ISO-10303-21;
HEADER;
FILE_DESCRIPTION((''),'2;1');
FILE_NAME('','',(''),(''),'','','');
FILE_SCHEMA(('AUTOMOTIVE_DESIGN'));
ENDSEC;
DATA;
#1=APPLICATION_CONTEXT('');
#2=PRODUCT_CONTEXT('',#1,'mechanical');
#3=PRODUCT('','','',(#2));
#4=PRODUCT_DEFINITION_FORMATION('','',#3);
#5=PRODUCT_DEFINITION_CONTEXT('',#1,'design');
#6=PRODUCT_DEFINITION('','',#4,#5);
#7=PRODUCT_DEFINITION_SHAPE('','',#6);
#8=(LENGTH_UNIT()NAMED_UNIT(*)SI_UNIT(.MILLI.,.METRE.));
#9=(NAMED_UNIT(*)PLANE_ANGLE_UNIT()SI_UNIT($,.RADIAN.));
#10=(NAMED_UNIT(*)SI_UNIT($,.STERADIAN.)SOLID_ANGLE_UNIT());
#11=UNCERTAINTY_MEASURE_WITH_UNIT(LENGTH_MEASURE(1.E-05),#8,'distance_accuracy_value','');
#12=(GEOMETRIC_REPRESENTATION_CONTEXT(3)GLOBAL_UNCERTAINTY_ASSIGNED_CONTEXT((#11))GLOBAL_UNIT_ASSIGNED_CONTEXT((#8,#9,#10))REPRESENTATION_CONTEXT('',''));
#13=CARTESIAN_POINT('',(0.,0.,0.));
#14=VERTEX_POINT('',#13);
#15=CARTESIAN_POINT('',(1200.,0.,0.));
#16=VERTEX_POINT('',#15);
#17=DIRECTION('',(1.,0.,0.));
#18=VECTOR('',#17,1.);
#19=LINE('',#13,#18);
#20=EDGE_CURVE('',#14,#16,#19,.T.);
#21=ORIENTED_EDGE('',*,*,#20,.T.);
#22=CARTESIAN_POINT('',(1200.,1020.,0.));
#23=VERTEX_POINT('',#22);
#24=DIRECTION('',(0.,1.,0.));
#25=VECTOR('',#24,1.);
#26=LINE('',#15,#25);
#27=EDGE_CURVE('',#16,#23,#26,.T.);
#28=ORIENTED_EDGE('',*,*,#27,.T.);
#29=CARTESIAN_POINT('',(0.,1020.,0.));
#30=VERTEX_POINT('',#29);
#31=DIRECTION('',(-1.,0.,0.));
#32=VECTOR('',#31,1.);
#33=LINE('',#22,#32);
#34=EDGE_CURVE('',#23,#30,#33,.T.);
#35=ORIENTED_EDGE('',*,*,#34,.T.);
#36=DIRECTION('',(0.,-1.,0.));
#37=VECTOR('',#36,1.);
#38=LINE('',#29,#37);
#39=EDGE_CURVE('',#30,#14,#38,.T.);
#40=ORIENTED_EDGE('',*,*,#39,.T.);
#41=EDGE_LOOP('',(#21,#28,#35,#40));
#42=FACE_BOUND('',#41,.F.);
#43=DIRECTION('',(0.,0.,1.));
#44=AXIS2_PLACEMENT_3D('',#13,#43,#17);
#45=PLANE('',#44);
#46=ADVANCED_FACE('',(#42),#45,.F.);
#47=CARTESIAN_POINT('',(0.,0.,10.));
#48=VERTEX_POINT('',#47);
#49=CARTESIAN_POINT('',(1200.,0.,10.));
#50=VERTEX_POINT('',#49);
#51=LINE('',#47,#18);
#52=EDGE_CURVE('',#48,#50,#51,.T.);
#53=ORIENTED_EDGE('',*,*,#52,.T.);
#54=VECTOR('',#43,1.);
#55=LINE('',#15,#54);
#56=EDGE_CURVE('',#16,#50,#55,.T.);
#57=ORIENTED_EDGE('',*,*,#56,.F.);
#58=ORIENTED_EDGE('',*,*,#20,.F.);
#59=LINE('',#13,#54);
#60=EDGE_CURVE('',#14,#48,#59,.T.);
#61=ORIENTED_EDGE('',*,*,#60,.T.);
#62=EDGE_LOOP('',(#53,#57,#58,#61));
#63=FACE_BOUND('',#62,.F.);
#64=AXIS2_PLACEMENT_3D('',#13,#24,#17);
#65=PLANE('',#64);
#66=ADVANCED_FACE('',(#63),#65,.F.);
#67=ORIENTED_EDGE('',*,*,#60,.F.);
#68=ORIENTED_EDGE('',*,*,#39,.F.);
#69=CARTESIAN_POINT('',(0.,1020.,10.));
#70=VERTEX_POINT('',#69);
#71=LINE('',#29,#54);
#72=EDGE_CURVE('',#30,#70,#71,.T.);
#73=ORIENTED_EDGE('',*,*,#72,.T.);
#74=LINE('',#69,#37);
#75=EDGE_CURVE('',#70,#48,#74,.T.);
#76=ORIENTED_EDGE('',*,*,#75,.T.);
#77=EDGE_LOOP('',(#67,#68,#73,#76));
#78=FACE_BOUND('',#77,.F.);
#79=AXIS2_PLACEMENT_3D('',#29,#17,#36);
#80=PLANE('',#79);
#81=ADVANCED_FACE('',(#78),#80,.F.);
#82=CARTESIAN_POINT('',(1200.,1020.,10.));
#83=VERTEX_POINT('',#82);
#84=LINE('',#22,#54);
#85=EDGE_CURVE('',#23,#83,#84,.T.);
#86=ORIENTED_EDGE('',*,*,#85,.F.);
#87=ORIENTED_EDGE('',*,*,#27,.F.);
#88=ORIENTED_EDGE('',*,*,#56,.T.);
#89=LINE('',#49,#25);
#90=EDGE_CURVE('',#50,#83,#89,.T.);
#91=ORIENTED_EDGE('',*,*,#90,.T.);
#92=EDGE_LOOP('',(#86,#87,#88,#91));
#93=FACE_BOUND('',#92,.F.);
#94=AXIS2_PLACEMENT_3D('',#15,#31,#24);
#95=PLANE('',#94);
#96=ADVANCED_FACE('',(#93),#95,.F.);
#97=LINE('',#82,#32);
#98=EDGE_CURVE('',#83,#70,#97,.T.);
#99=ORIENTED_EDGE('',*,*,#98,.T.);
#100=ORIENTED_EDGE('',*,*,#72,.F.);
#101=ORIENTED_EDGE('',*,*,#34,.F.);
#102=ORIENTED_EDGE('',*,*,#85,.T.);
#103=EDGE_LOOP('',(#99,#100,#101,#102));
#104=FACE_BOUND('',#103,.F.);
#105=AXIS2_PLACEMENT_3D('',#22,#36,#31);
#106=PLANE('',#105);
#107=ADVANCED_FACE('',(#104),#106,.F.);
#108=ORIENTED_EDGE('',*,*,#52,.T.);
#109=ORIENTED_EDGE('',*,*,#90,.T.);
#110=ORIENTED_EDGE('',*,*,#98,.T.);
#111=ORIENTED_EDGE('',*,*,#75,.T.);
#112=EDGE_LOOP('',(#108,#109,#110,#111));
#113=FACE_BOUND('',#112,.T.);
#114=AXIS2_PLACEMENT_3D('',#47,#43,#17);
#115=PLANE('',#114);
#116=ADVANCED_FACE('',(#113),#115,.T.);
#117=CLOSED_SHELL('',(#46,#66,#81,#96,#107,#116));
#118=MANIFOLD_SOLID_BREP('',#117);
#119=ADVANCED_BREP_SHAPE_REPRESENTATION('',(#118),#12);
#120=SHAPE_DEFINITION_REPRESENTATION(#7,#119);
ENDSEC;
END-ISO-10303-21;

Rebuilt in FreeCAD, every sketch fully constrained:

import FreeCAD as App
import Part
import Sketcher

V = App.Vector
Q = App.Units.Quantity

doc = App.newDocument("Part")
body = doc.addObject("PartDesign::Body", "Body")

# Sketch on XY plane
sketch1 = body.newObject("Sketcher::SketchObject", "Sketch")
sketch1.AttachmentSupport = (doc.getObject("XY_Plane"), [""])
sketch1.MapMode = "FlatFace"
sketch1.addGeometry([
    Part.LineSegment(V(0, 1020, 0), V(0, 0, 0)),
    Part.LineSegment(V(0, 0, 0), V(1200, 0, 0)),
    Part.LineSegment(V(1200, 0, 0), V(1200, 1020, 0)),
    Part.LineSegment(V(1200, 1020, 0), V(0, 1020, 0)),
], False)
sketch1.addConstraint([
    Sketcher.Constraint("Coincident", 0, 2, 1, 1),
    Sketcher.Constraint("Coincident", 1, 2, 2, 1),
    Sketcher.Constraint("Coincident", 2, 2, 3, 1),
    Sketcher.Constraint("Coincident", 3, 2, 0, 1),
    Sketcher.Constraint("Vertical", 0),
    Sketcher.Constraint("Horizontal", 1),
    Sketcher.Constraint("Vertical", 2),
    Sketcher.Constraint("Horizontal", 3),
    Sketcher.Constraint("Coincident", 0, 2, -1, 1),
    Sketcher.Constraint("DistanceX", 1, 1, 1, 2, Q("1200 mm")),
    Sketcher.Constraint("DistanceY", 0, 2, 0, 1, Q("1020 mm")),
])
pad1 = body.newObject("PartDesign::Pad", "Pad")
pad1.Profile = sketch1
pad1.Length = 10

doc.recompute()
